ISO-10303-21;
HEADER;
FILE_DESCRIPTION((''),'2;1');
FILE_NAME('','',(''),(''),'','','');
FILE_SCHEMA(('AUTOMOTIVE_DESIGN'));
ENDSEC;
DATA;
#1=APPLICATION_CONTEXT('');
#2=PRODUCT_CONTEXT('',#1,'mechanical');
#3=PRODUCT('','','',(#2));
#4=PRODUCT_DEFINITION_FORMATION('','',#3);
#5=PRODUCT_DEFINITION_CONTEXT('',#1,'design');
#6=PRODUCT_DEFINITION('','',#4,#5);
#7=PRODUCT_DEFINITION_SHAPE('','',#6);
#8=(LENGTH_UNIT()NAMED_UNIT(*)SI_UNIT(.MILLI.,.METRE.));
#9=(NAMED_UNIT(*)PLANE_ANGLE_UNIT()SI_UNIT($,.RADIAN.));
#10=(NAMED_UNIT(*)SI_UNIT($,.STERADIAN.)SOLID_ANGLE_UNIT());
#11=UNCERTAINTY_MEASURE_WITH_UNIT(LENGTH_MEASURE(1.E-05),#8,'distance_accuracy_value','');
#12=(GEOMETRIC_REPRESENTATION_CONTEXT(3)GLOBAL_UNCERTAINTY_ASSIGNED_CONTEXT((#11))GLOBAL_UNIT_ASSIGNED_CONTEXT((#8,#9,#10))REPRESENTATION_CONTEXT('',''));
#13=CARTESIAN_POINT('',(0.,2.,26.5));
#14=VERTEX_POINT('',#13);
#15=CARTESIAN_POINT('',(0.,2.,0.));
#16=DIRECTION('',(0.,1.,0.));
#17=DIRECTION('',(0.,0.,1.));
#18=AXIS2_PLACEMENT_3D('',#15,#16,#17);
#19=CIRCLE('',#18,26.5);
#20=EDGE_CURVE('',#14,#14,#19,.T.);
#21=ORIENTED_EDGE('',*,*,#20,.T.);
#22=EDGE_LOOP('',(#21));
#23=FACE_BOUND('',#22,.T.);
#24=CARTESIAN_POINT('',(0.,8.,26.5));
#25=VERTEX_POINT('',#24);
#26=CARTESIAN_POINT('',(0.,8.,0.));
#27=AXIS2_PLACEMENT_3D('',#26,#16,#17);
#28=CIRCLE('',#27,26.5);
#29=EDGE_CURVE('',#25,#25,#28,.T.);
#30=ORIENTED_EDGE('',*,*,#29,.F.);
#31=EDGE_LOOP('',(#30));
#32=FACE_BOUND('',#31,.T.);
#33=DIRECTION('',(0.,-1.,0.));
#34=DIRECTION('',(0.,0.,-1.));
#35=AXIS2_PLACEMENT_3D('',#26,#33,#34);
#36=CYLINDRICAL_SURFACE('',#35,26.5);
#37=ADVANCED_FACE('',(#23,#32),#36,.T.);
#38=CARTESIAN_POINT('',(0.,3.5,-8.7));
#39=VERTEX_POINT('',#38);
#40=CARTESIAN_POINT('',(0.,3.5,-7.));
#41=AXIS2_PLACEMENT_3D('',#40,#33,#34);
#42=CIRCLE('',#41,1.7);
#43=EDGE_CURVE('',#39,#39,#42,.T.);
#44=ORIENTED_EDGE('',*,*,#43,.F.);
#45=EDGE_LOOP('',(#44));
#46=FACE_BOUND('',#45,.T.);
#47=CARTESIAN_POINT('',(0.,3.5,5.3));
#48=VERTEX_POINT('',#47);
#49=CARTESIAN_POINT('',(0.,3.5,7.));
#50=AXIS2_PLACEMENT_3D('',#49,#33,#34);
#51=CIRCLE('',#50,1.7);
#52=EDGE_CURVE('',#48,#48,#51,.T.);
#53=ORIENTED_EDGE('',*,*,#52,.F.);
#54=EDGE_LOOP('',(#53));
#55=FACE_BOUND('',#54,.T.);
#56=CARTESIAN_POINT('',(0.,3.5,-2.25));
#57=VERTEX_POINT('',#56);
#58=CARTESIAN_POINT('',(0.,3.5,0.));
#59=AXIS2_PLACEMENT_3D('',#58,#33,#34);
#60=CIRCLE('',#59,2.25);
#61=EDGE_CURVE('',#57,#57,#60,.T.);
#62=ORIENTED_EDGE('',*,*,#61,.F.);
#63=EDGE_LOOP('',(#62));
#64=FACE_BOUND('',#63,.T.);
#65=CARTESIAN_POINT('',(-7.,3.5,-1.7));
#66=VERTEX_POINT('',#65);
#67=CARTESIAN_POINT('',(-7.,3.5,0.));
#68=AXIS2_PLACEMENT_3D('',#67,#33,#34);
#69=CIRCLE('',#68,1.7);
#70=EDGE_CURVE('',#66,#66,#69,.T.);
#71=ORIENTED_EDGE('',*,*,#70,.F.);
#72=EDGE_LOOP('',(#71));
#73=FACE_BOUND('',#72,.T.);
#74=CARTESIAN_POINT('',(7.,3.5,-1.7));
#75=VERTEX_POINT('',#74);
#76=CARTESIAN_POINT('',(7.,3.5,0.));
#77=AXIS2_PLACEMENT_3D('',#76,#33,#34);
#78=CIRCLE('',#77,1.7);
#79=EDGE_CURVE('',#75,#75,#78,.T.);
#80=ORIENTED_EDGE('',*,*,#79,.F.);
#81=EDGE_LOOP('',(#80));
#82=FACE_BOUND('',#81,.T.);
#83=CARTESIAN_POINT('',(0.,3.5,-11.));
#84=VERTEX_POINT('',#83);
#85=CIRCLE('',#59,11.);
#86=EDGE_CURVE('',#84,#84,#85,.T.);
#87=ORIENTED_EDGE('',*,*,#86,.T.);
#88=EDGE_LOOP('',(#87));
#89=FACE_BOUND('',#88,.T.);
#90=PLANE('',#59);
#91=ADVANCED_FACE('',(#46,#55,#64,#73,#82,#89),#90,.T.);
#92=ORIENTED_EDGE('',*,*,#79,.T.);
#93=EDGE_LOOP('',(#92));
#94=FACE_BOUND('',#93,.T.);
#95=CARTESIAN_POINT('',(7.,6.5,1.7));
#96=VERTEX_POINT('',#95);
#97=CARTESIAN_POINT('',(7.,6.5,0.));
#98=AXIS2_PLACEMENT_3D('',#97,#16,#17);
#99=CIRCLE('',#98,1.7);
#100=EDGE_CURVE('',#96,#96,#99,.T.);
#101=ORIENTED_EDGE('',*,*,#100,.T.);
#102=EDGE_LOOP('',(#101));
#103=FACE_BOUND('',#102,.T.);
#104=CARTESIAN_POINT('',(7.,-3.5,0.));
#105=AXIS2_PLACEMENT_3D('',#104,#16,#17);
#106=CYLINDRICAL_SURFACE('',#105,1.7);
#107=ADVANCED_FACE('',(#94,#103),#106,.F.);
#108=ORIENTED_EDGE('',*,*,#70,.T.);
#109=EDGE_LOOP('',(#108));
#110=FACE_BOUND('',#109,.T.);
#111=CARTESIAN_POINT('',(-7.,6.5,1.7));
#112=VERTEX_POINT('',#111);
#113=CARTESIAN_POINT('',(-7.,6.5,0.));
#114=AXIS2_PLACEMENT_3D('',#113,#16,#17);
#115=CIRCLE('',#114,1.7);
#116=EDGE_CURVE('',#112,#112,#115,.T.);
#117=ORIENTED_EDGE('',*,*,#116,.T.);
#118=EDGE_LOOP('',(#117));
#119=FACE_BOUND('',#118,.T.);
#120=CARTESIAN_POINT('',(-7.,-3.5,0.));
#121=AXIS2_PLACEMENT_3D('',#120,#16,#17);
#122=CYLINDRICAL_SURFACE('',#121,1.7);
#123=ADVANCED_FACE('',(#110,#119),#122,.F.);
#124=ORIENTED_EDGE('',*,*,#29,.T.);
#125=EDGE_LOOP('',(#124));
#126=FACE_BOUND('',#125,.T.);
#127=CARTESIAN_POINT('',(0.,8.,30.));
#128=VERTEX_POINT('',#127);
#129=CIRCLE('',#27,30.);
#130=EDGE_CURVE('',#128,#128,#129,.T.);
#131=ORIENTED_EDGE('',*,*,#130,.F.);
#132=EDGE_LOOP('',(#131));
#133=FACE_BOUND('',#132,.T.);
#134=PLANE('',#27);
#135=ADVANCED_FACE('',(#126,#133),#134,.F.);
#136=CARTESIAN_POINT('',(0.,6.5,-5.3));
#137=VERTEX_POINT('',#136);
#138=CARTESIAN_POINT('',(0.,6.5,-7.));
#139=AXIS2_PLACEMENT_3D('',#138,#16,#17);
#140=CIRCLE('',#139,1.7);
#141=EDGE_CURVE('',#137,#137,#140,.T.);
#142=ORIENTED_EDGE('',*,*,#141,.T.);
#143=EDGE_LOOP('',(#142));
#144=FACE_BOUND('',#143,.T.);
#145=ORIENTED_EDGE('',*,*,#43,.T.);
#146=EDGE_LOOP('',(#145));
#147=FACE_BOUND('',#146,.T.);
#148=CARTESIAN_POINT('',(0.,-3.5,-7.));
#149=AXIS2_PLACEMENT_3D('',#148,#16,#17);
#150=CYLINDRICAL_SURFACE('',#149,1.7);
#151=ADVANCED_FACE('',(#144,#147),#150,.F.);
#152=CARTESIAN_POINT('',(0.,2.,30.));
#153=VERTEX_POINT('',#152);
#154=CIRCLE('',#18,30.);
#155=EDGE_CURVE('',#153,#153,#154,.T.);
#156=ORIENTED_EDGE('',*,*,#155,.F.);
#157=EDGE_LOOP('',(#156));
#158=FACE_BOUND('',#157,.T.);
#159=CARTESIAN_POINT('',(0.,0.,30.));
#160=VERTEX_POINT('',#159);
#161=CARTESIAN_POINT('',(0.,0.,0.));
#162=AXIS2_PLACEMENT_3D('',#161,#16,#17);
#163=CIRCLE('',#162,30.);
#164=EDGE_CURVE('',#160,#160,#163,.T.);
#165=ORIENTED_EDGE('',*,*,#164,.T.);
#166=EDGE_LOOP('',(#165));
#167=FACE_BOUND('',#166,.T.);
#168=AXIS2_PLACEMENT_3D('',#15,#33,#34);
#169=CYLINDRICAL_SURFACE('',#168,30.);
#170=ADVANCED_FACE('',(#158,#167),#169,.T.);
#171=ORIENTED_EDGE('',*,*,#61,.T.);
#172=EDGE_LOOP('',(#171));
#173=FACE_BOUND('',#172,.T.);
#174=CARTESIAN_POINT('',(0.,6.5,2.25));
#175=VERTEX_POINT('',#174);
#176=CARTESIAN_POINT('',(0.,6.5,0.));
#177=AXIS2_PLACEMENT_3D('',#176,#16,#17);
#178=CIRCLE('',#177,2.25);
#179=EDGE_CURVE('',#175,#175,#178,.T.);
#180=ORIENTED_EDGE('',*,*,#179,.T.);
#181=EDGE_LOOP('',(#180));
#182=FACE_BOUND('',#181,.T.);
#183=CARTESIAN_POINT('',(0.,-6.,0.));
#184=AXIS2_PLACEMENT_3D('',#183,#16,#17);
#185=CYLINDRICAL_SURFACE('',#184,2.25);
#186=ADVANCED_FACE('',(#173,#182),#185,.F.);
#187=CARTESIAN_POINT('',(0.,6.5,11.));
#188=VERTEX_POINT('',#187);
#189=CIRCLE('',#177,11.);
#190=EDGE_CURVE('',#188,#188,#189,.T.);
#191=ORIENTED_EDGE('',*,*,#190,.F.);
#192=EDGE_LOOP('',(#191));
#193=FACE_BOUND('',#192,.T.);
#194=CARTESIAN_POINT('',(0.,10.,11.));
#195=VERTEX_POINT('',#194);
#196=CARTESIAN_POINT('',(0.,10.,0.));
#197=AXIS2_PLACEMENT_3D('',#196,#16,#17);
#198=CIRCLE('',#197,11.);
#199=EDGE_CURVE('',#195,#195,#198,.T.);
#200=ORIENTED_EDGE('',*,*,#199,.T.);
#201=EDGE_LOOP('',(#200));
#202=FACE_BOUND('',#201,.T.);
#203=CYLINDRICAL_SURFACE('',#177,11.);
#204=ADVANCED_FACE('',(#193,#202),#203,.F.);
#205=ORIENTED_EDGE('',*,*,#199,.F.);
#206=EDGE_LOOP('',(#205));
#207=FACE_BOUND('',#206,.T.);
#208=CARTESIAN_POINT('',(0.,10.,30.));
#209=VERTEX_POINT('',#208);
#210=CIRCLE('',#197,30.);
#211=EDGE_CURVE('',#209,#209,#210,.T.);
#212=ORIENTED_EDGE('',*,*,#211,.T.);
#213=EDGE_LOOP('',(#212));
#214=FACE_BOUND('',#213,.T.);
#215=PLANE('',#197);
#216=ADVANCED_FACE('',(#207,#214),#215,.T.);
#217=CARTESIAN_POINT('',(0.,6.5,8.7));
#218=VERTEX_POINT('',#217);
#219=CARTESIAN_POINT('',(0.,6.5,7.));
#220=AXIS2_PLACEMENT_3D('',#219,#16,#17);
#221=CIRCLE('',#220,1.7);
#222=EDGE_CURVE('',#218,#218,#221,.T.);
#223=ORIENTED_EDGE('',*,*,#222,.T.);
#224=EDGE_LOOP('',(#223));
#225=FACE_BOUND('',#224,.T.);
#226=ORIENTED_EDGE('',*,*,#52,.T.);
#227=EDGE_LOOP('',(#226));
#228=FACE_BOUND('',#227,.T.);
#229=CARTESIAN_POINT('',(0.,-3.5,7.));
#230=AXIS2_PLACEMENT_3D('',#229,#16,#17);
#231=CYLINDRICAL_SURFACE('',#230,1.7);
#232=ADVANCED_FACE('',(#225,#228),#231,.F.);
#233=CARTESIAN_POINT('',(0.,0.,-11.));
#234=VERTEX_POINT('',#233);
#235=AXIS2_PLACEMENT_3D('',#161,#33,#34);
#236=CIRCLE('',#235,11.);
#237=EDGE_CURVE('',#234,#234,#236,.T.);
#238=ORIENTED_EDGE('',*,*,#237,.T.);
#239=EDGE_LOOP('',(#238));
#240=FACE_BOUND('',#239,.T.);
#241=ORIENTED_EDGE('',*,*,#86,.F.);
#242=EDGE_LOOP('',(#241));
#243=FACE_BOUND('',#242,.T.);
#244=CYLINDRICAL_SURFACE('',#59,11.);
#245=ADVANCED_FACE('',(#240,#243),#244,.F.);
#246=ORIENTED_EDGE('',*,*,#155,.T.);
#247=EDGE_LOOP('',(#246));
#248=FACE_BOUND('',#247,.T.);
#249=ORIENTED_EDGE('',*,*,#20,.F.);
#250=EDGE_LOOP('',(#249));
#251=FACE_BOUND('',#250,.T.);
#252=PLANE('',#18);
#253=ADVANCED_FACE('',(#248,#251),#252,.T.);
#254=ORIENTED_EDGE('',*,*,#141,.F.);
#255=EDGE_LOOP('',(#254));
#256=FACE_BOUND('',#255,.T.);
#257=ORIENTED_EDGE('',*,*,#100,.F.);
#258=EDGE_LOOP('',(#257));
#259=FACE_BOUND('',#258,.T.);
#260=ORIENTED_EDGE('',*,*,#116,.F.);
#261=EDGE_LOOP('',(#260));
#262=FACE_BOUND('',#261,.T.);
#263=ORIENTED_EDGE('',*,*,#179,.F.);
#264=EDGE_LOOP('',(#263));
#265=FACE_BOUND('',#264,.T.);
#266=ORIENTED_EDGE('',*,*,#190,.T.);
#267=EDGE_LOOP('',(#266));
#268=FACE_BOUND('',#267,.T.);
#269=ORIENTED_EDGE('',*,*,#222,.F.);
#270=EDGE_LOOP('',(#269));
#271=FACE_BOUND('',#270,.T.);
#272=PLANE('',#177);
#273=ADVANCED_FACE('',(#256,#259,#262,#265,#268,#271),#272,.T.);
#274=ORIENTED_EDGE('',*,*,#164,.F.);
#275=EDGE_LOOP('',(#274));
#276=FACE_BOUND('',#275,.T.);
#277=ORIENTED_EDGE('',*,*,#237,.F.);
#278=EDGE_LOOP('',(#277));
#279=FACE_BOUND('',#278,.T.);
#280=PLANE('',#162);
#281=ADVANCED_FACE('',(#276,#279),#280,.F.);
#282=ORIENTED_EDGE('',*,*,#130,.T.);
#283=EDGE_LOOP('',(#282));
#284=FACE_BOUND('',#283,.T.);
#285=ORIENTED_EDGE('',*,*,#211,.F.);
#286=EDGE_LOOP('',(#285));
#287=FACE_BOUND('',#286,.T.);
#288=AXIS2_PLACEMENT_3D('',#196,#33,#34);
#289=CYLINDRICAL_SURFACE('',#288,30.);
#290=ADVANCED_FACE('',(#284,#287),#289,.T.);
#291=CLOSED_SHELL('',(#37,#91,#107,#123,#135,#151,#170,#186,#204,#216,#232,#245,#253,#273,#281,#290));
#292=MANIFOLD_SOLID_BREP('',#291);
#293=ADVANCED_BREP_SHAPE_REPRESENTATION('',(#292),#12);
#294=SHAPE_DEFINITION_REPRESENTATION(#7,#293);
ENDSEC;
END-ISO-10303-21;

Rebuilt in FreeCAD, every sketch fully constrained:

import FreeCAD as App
import Part
import Sketcher

V = App.Vector
Q = App.Units.Quantity

doc = App.newDocument("Part")
body = doc.addObject("PartDesign::Body", "Body")

# Sketch on XZ plane
sketch1 = body.newObject("Sketcher::SketchObject", "Sketch")
sketch1.AttachmentSupport = (doc.getObject("XZ_Plane"), [""])
sketch1.MapMode = "FlatFace"
sketch1.addGeometry(Part.Circle(V(0, 0, 0), V(0, 0, 1), 30), False)
sketch1.addConstraint([
    Sketcher.Constraint("Coincident", 0, 3, -1, 1),
    Sketcher.Constraint("Diameter", 0, Q("60 mm")),
])
pad1 = body.newObject("PartDesign::Pad", "Pad")
pad1.Profile = sketch1
pad1.Length = 2
pad1.Reversed = True

# Sketch on XZ plane
sketch2 = body.newObject("Sketcher::SketchObject", "Sketch001")
sketch2.AttachmentSupport = (doc.getObject("XZ_Plane"), [""])
sketch2.MapMode = "FlatFace"
sketch2.AttachmentOffset = App.Placement(V(0, 0, -2), App.Rotation())
sketch2.addGeometry(Part.Circle(V(0, 0, 0), V(0, 0, 1), 26.5), False)
sketch2.addConstraint([
    Sketcher.Constraint("Coincident", 0, 3, -1, 1),
    Sketcher.Constraint("Diameter", 0, Q("53 mm")),
])
pad2 = body.newObject("PartDesign::Pad", "Pad001")
pad2.Profile = sketch2
pad2.Length = 6
pad2.Reversed = True

# Sketch on XZ plane
sketch3 = body.newObject("Sketcher::SketchObject", "Sketch002")
sketch3.AttachmentSupport = (doc.getObject("XZ_Plane"), [""])
sketch3.MapMode = "FlatFace"
sketch3.AttachmentOffset = App.Placement(V(0, 0, -8), App.Rotation())
sketch3.addGeometry(Part.Circle(V(0, 0, 0), V(0, 0, 1), 30), False)
sketch3.addConstraint([
    Sketcher.Constraint("Coincident", 0, 3, -1, 1),
    Sketcher.Constraint("Diameter", 0, Q("60 mm")),
])
pad3 = body.newObject("PartDesign::Pad", "Pad002")
pad3.Profile = sketch3
pad3.Length = 2
pad3.Reversed = True

# Sketch on XZ plane
sketch4 = body.newObject("Sketcher::SketchObject", "Sketch003")
sketch4.AttachmentSupport = (doc.getObject("XZ_Plane"), [""])
sketch4.MapMode = "FlatFace"
sketch4.addGeometry(Part.Circle(V(0, 0, 0), V(0, 0, 1), 11), False)
sketch4.addConstraint([
    Sketcher.Constraint("Coincident", 0, 3, -1, 1),
    Sketcher.Constraint("Diameter", 0, Q("22 mm")),
])
pocket1 = body.newObject("PartDesign::Pocket", "Pocket")
pocket1.Profile = sketch4
pocket1.Length = 3.5

# Sketch on XZ plane
sketch5 = body.newObject("Sketcher::SketchObject", "Sketch004")
sketch5.AttachmentSupport = (doc.getObject("XZ_Plane"), [""])
sketch5.MapMode = "FlatFace"
sketch5.AttachmentOffset = App.Placement(V(0, 0, -10), App.Rotation())
sketch5.addGeometry(Part.Circle(V(0, 0, 0), V(0, 0, 1), 11), False)
sketch5.addConstraint([
    Sketcher.Constraint("Coincident", 0, 3, -1, 1),
    Sketcher.Constraint("Diameter", 0, Q("22 mm")),
])
pocket2 = body.newObject("PartDesign::Pocket", "Pocket001")
pocket2.Profile = sketch5
pocket2.Length = 3.5
pocket2.Reversed = True

# Sketch on XZ plane
sketch6 = body.newObject("Sketcher::SketchObject", "Sketch005")
sketch6.AttachmentSupport = (doc.getObject("XZ_Plane"), [""])
sketch6.MapMode = "FlatFace"
sketch6.AttachmentOffset = App.Placement(V(0, 0, -6.5), App.Rotation())
sketch6.addGeometry(Part.Circle(V(0, 0, 0), V(0, 0, 1), 2.25), False)
sketch6.addConstraint([
    Sketcher.Constraint("Coincident", 0, 3, -1, 1),
    Sketcher.Constraint("Diameter", 0, Q("4.5 mm")),
])
pocket3 = body.newObject("PartDesign::Pocket", "Pocket002")
pocket3.Profile = sketch6
pocket3.Length = 12.5
pocket3.Reversed = True

# Sketch on XZ plane
sketch7 = body.newObject("Sketcher::SketchObject", "Sketch006")
sketch7.AttachmentSupport = (doc.getObject("XZ_Plane"), [""])
sketch7.MapMode = "FlatFace"
sketch7.AttachmentOffset = App.Placement(V(0, 0, -6.5), App.Rotation())
sketch7.addGeometry([
    Part.Circle(V(0, -7, 0), V(0, 0, 1), 1.7),
    Part.Circle(V(7, 0, 0), V(0, 0, 1), 1.7),
    Part.Circle(V(0, 7, 0), V(0, 0, 1), 1.7),
    Part.Circle(V(-7, 0, 0), V(0, 0, 1), 1.7),
], False)
sketch7.addConstraint([
    Sketcher.Constraint("Equal", 0, 1),
    Sketcher.Constraint("Equal", 1, 2),
    Sketcher.Constraint("Equal", 2, 3),
    Sketcher.Constraint("Symmetric", 0, 3, 2, 3, -1, 1),
    Sketcher.Constraint("Symmetric", 1, 3, 3, 3, -1, 1),
    Sketcher.Constraint("PointOnObject", 0, 3, -2),
    Sketcher.Constraint("PointOnObject", 1, 3, -1),
    Sketcher.Constraint("Diameter", 0, Q("3.4 mm")),
    Sketcher.Constraint("DistanceY", 0, 3, -1, 1, Q("7 mm")),
    Sketcher.Constraint("DistanceX", -1, 1, 1, 3, Q("7 mm")),
])
pocket4 = body.newObject("PartDesign::Pocket", "Pocket003")
pocket4.Profile = sketch7
pocket4.Length = 10
pocket4.Reversed = True

doc.recompute()
